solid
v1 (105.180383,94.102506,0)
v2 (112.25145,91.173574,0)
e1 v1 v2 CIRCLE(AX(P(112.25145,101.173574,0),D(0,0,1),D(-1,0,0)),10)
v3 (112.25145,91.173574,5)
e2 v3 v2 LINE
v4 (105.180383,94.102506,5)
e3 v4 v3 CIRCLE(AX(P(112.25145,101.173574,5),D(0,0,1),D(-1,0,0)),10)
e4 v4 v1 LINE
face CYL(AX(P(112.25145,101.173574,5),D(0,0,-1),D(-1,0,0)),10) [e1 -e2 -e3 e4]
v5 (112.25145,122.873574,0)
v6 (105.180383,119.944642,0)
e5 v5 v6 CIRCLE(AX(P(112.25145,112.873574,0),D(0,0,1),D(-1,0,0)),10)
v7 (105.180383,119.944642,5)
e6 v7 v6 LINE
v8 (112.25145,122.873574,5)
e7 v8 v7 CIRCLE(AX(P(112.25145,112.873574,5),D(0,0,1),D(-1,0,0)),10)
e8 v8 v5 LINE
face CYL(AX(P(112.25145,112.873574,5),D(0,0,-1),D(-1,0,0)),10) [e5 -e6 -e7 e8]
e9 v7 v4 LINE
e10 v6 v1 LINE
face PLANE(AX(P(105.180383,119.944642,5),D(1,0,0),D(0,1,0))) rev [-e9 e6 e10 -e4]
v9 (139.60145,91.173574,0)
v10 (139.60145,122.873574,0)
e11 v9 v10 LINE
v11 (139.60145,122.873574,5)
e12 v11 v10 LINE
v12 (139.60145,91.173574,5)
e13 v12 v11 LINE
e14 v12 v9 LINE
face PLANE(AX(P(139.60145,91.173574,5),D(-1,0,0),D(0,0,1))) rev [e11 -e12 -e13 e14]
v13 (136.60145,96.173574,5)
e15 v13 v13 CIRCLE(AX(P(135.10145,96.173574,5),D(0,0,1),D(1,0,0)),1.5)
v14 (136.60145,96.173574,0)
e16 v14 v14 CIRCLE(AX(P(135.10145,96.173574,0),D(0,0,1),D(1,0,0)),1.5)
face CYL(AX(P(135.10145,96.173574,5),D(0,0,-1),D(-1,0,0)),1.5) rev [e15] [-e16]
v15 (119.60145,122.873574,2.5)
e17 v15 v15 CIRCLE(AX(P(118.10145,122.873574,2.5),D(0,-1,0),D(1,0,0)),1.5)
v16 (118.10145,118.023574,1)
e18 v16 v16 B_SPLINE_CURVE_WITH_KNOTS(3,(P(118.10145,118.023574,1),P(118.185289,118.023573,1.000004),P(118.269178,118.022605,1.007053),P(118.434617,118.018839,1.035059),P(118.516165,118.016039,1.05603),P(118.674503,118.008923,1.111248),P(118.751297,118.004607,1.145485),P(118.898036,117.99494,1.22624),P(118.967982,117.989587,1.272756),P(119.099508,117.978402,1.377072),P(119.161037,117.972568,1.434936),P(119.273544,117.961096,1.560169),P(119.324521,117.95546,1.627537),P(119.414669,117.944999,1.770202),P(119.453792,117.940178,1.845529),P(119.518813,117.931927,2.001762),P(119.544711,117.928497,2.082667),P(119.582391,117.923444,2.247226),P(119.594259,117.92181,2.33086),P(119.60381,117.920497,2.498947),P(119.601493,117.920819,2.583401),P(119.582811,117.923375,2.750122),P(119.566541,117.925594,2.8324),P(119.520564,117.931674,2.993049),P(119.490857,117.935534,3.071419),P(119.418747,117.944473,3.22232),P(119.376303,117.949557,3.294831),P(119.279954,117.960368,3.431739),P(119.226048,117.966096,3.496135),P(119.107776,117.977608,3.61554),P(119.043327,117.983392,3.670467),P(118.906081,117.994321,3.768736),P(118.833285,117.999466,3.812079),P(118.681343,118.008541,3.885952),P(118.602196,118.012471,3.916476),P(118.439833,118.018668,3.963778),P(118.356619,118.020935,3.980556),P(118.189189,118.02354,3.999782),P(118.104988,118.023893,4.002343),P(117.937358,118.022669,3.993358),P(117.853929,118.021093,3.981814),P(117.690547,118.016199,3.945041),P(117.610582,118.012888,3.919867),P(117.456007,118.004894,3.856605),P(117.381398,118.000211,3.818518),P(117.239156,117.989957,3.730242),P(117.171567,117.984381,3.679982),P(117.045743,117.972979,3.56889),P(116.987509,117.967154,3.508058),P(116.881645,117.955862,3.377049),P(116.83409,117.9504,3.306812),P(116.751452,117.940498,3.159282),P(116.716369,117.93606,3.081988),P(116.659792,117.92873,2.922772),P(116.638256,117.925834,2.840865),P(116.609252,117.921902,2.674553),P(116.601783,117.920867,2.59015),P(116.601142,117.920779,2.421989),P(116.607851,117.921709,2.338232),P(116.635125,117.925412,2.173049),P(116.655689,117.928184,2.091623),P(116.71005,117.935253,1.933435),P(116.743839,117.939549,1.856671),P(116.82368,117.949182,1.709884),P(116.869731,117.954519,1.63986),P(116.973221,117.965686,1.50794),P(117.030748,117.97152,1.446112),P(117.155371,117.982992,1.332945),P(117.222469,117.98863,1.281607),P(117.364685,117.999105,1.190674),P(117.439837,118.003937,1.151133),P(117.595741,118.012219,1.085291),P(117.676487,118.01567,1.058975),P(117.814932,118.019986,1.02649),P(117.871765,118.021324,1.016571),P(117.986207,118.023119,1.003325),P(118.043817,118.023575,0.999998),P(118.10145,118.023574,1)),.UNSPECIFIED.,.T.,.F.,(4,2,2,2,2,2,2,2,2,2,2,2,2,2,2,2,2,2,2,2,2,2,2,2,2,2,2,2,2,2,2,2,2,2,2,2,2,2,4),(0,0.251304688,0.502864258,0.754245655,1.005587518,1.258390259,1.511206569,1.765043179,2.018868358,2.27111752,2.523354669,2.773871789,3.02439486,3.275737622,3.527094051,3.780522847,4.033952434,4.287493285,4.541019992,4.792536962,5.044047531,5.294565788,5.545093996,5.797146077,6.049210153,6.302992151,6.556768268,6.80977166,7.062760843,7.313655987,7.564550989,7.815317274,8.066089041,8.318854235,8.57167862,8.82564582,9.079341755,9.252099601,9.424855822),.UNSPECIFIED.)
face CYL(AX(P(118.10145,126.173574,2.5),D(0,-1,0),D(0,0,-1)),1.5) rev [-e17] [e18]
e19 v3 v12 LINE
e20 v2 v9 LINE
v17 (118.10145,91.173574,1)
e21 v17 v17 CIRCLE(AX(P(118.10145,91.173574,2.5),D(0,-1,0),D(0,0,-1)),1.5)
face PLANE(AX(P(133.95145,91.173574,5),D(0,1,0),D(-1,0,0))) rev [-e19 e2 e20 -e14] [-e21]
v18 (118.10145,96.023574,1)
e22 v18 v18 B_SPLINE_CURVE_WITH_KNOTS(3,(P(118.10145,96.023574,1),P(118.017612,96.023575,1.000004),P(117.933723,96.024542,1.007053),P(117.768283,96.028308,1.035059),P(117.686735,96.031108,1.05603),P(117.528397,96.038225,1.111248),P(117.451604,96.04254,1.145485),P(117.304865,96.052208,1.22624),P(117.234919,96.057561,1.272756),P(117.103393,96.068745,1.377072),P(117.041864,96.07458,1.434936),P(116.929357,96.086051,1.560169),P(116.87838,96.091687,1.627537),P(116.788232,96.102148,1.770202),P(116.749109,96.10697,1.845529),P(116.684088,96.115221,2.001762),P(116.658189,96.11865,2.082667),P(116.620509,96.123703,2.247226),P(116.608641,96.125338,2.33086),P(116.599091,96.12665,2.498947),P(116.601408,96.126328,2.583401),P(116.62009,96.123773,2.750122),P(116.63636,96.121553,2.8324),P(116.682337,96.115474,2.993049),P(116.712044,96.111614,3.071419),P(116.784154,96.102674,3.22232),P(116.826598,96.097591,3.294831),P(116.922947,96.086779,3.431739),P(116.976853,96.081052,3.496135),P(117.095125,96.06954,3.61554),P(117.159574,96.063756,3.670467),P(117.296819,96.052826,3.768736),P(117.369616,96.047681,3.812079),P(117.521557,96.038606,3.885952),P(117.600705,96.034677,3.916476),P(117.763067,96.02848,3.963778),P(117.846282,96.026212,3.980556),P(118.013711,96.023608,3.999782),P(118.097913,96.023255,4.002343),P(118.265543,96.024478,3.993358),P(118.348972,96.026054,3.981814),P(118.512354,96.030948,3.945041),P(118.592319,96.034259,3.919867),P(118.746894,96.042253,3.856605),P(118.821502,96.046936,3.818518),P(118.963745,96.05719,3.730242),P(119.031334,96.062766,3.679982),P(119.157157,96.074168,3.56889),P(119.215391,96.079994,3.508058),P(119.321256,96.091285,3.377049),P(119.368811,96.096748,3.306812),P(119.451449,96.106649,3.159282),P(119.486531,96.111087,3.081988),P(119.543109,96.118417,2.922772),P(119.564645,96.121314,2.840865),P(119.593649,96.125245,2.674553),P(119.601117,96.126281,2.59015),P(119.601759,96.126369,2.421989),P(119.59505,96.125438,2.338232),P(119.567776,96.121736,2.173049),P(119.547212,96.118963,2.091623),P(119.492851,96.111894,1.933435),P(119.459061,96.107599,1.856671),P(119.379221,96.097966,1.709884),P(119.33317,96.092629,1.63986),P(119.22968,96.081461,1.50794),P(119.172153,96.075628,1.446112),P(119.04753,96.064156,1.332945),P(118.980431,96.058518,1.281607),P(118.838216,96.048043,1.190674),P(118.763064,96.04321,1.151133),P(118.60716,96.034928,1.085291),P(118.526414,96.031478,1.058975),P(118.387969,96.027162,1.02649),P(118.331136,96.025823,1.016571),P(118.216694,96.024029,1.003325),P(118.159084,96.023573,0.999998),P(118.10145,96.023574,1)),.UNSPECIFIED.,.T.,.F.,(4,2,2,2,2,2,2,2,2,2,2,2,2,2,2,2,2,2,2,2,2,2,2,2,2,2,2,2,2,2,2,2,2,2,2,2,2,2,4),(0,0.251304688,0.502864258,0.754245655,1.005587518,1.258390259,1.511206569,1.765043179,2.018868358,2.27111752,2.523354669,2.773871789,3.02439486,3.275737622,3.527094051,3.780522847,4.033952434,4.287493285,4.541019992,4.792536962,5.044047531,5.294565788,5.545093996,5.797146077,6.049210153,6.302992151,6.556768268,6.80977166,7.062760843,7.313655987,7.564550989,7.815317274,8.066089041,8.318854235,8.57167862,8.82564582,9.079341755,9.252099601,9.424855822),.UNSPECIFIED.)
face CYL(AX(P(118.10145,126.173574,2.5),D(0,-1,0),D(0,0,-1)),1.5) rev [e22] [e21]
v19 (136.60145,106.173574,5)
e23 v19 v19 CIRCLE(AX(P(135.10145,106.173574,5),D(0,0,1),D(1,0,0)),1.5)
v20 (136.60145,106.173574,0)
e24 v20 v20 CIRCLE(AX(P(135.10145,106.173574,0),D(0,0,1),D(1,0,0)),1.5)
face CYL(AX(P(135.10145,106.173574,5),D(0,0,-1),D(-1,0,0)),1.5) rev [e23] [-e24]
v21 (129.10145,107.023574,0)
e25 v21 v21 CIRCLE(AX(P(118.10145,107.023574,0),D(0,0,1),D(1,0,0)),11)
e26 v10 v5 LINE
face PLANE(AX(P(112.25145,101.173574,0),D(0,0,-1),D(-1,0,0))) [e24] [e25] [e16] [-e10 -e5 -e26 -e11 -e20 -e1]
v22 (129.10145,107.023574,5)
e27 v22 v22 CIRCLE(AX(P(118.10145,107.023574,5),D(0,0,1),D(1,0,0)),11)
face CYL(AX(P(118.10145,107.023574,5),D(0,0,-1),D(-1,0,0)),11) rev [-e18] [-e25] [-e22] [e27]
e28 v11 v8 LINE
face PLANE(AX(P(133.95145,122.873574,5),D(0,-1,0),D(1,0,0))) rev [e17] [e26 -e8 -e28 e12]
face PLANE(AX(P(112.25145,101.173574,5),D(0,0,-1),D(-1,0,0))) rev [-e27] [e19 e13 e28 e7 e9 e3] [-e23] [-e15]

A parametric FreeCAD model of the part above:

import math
import FreeCAD as App
import Part
import Sketcher
Q = App.Units.Quantity

doc = App.newDocument("Part")
body = doc.addObject("PartDesign::Body", "Body")

# Sketch on XY plane
sketch1 = doc.addObject("Sketcher::SketchObject", "Sketch")
body.addObject(sketch1)
sketch1.AttachmentSupport = (doc.XY_Plane, [""])
sketch1.MapMode = "FlatFace"
sketch1.addGeometry(Part.LineSegment(App.Vector(112.3, 91.2, 0), App.Vector(139.6, 91.2, 0)), False)
sketch1.addGeometry(Part.LineSegment(App.Vector(139.6, 91.2, 0), App.Vector(139.6, 122.9, 0)), False)
sketch1.addGeometry(Part.LineSegment(App.Vector(139.6, 122.9, 0), App.Vector(112.3, 122.9, 0)), False)
sketch1.addGeometry(Part.ArcOfCircle(Part.Circle(App.Vector(112.3, 112.9, 0), App.Vector(0, 0, 1), 10), math.radians(90), math.radians(135)), False)
sketch1.addGeometry(Part.LineSegment(App.Vector(105.2, 119.9, 0), App.Vector(105.2, 94.1, 0)), False)
sketch1.addGeometry(Part.ArcOfCircle(Part.Circle(App.Vector(112.3, 101.2, 0), App.Vector(0, 0, 1), 10), math.radians(-135), math.radians(-90)), False)
sketch1.addGeometry(Part.Circle(App.Vector(135.1, 96.2, 0), App.Vector(0, 0, 1), 1.5), False)
sketch1.addGeometry(Part.Circle(App.Vector(135.1, 106.2, 0), App.Vector(0, 0, 1), 1.5), False)
sketch1.addGeometry(Part.Circle(App.Vector(118.1, 107, 0), App.Vector(0, 0, 1), 11), False)
sketch1.addConstraint(Sketcher.Constraint("Coincident", 0, 2, 1, 1))
sketch1.addConstraint(Sketcher.Constraint("Coincident", 1, 2, 2, 1))
sketch1.addConstraint(Sketcher.Constraint("Tangent", 2, 2, 3, 1))
sketch1.addConstraint(Sketcher.Constraint("Coincident", 3, 2, 4, 1))
sketch1.addConstraint(Sketcher.Constraint("Coincident", 4, 2, 5, 1))
sketch1.addConstraint(Sketcher.Constraint("Tangent", 5, 2, 0, 1))
sketch1.addConstraint(Sketcher.Constraint("Horizontal", 0))
sketch1.addConstraint(Sketcher.Constraint("Vertical", 1))
sketch1.addConstraint(Sketcher.Constraint("Horizontal", 2))
sketch1.addConstraint(Sketcher.Constraint("Vertical", 4))
sketch1.addConstraint(Sketcher.Constraint("Equal", 3, 5))
sketch1.addConstraint(Sketcher.Constraint("Equal", 6, 7))
sketch1.addConstraint(Sketcher.Constraint("Vertical", 3, 3, 5, 3))
sketch1.addConstraint(Sketcher.Constraint("Vertical", 6, 3, 7, 3))
sketch1.addConstraint(Sketcher.Constraint("Diameter", 6, Q("3 mm")))
sketch1.addConstraint(Sketcher.Constraint("Diameter", 8, Q("22 mm")))
sketch1.addConstraint(Sketcher.Constraint("Radius", 3, Q("10 mm")))
sketch1.addConstraint(Sketcher.Constraint("DistanceY", 1, 1, 1, 2, Q("31.7 mm")))
sketch1.addConstraint(Sketcher.Constraint("DistanceY", 6, 3, 5, 3, Q("5 mm")))
sketch1.addConstraint(Sketcher.Constraint("DistanceY", 6, 3, 7, 3, Q("10 mm")))
sketch1.addConstraint(Sketcher.Constraint("DistanceX", 8, 3, 7, 3, Q("17 mm")))
sketch1.addConstraint(Sketcher.Constraint("DistanceX", 0, 1, 0, 2, Q("27.35 mm")))
sketch1.addConstraint(Sketcher.Constraint("DistanceX", 6, 3, 0, 2, Q("4.5 mm")))
sketch1.addConstraint(Sketcher.Constraint("DistanceY", 8, 3, 3, 3, Q("5.85 mm")))
sketch1.addConstraint(Sketcher.Constraint("DistanceY", 4, 2, 4, 1, Q("25.842136 mm")))
sketch1.addConstraint(Sketcher.Constraint("DistanceX", -1, 1, 3, 3, Q("112.25145 mm")))
sketch1.addConstraint(Sketcher.Constraint("DistanceY", -1, 1, 3, 2, Q("119.944642 mm")))
pad1 = doc.addObject("PartDesign::Pad", "Pad")
body.addObject(pad1)
pad1.Profile = sketch1
pad1.Length = 5

# Sketch on XZ plane
sketch2 = doc.addObject("Sketcher::SketchObject", "Sketch001")
body.addObject(sketch2)
sketch2.AttachmentSupport = (doc.XZ_Plane, [""])
sketch2.MapMode = "FlatFace"
sketch2.AttachmentOffset = App.Placement(App.Vector(0, 0, -91.173574), App.Rotation())
sketch2.addGeometry(Part.Circle(App.Vector(118.1, 2.5, 0), App.Vector(0, 0, 1), 1.5), False)
sketch2.addConstraint(Sketcher.Constraint("Diameter", 0, Q("3 mm")))
sketch2.addConstraint(Sketcher.Constraint("DistanceY", -1, 1, 0, 3, Q("2.5 mm")))
sketch2.addConstraint(Sketcher.Constraint("DistanceX", -1, 1, 0, 3, Q("118.10145 mm")))
pocket1 = doc.addObject("PartDesign::Pocket", "Pocket")
body.addObject(pocket1)
pocket1.Profile = sketch2
pocket1.Length = 35

doc.recompute()
